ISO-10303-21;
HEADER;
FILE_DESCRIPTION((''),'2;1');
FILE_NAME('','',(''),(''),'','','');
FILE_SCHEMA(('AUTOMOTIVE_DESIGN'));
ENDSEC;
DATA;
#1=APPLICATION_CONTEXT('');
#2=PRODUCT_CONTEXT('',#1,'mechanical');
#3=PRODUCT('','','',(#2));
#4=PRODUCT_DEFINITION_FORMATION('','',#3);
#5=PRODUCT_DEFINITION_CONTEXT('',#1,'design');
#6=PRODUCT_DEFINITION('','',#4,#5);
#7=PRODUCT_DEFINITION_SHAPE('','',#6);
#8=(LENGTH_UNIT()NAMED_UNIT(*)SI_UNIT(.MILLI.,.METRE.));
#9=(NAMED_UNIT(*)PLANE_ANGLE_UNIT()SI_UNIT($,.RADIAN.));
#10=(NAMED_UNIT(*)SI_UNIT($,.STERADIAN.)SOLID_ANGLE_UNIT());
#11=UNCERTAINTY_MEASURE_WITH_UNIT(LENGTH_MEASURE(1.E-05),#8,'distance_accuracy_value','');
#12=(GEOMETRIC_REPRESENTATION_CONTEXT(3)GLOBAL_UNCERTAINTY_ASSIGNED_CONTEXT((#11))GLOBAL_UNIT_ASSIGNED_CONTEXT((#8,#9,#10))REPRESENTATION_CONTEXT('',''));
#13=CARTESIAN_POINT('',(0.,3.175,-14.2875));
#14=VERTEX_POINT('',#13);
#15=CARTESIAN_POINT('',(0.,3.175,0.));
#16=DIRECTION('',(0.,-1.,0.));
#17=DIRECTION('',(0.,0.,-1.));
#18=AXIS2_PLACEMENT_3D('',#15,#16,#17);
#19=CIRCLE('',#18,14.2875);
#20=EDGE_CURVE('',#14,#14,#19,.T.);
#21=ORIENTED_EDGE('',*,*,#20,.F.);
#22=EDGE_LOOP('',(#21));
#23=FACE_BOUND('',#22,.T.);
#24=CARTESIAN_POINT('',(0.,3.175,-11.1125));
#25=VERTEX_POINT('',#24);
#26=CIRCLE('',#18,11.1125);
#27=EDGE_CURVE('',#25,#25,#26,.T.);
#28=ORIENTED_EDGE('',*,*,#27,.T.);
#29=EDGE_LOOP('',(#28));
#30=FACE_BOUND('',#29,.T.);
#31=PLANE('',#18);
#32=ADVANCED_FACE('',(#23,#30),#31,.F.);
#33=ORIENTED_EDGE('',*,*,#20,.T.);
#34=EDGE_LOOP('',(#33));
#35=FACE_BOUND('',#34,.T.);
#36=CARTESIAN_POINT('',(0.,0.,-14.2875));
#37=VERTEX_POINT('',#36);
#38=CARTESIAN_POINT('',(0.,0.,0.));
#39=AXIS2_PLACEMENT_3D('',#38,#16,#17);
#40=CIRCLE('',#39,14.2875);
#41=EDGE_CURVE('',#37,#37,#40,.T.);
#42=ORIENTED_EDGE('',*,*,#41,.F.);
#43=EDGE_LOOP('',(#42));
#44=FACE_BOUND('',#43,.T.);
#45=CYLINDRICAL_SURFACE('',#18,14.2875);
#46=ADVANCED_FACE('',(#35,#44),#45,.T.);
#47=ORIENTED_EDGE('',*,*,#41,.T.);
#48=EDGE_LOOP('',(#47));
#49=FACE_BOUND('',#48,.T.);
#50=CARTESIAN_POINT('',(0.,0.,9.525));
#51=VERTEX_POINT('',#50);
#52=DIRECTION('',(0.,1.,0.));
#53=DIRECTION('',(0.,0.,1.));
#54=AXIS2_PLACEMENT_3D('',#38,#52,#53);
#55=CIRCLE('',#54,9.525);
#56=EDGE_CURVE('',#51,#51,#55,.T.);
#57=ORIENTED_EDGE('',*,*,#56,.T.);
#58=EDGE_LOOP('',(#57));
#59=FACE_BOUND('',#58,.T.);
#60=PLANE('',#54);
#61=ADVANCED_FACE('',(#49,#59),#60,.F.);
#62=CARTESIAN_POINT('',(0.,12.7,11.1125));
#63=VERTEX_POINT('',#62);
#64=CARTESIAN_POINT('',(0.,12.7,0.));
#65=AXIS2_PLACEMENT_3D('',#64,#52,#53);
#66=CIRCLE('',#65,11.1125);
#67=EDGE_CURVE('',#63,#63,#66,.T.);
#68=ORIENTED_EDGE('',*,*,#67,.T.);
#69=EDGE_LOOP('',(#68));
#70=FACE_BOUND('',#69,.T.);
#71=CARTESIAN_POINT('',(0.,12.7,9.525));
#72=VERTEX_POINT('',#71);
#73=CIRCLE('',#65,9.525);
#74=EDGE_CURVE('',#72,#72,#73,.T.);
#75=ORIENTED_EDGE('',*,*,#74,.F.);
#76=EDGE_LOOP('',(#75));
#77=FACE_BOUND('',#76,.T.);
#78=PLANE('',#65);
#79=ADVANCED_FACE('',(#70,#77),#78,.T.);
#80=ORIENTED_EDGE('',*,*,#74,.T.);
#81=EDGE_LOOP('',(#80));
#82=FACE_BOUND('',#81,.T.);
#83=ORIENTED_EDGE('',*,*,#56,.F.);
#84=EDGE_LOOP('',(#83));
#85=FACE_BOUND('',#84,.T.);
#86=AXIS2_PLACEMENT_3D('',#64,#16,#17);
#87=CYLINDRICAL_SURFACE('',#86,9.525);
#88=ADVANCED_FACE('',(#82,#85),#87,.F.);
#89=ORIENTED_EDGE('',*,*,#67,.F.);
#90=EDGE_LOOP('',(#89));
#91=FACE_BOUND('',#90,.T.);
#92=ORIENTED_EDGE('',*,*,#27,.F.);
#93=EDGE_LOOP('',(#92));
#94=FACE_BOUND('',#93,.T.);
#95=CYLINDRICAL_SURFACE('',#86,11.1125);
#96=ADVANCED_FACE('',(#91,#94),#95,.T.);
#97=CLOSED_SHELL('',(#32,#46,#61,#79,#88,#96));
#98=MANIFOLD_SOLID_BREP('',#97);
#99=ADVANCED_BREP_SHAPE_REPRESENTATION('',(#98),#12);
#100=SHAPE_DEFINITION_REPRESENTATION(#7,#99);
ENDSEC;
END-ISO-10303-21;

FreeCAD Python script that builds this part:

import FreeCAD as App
import Part
import Sketcher

V = App.Vector
Q = App.Units.Quantity

doc = App.newDocument("Part")
body = doc.addObject("PartDesign::Body", "Body")

# Sketch on XZ plane
sketch1 = body.newObject("Sketcher::SketchObject", "Sketch")
sketch1.AttachmentSupport = (doc.getObject("XZ_Plane"), [""])
sketch1.MapMode = "FlatFace"
sketch1.addGeometry([
    Part.Circle(V(0, 0, 0), V(0, 0, 1), 11.1125),
    Part.Circle(V(0, 0, 0), V(0, 0, 1), 9.525),
], False)
sketch1.addConstraint([
    Sketcher.Constraint("Coincident", 0, 3, -1, 1),
    Sketcher.Constraint("Coincident", 1, 3, -1, 1),
    Sketcher.Constraint("Diameter", 1, Q("0.75 in")),
    Sketcher.Constraint("Diameter", 0, Q("0.875 in")),
])
pad1 = body.newObject("PartDesign::Pad", "Pad")
pad1.Profile = sketch1
pad1.Length = Q("0.5 in")
pad1.Reversed = True

# Sketch on XZ plane
sketch2 = body.newObject("Sketcher::SketchObject", "Sketch001")
sketch2.AttachmentSupport = (doc.getObject("XZ_Plane"), [""])
sketch2.MapMode = "FlatFace"
sketch2.addGeometry([
    Part.Circle(V(0, 0, 0), V(0, 0, 1), 14.2875),
    Part.Circle(V(0, 0, 0), V(0, 0, 1), 11.1125),
], False)
sketch2.addConstraint([
    Sketcher.Constraint("Coincident", 0, 3, -1, 1),
    Sketcher.Constraint("Coincident", 1, 3, -1, 1),
    Sketcher.Constraint("Diameter", 0, Q("1.125 in")),
    Sketcher.Constraint("Diameter", 1, Q("0.875 in")),
])
pad2 = body.newObject("PartDesign::Pad", "Pad001")
pad2.Profile = sketch2
pad2.Length = Q("0.125 in")
pad2.Reversed = True

doc.recompute()
